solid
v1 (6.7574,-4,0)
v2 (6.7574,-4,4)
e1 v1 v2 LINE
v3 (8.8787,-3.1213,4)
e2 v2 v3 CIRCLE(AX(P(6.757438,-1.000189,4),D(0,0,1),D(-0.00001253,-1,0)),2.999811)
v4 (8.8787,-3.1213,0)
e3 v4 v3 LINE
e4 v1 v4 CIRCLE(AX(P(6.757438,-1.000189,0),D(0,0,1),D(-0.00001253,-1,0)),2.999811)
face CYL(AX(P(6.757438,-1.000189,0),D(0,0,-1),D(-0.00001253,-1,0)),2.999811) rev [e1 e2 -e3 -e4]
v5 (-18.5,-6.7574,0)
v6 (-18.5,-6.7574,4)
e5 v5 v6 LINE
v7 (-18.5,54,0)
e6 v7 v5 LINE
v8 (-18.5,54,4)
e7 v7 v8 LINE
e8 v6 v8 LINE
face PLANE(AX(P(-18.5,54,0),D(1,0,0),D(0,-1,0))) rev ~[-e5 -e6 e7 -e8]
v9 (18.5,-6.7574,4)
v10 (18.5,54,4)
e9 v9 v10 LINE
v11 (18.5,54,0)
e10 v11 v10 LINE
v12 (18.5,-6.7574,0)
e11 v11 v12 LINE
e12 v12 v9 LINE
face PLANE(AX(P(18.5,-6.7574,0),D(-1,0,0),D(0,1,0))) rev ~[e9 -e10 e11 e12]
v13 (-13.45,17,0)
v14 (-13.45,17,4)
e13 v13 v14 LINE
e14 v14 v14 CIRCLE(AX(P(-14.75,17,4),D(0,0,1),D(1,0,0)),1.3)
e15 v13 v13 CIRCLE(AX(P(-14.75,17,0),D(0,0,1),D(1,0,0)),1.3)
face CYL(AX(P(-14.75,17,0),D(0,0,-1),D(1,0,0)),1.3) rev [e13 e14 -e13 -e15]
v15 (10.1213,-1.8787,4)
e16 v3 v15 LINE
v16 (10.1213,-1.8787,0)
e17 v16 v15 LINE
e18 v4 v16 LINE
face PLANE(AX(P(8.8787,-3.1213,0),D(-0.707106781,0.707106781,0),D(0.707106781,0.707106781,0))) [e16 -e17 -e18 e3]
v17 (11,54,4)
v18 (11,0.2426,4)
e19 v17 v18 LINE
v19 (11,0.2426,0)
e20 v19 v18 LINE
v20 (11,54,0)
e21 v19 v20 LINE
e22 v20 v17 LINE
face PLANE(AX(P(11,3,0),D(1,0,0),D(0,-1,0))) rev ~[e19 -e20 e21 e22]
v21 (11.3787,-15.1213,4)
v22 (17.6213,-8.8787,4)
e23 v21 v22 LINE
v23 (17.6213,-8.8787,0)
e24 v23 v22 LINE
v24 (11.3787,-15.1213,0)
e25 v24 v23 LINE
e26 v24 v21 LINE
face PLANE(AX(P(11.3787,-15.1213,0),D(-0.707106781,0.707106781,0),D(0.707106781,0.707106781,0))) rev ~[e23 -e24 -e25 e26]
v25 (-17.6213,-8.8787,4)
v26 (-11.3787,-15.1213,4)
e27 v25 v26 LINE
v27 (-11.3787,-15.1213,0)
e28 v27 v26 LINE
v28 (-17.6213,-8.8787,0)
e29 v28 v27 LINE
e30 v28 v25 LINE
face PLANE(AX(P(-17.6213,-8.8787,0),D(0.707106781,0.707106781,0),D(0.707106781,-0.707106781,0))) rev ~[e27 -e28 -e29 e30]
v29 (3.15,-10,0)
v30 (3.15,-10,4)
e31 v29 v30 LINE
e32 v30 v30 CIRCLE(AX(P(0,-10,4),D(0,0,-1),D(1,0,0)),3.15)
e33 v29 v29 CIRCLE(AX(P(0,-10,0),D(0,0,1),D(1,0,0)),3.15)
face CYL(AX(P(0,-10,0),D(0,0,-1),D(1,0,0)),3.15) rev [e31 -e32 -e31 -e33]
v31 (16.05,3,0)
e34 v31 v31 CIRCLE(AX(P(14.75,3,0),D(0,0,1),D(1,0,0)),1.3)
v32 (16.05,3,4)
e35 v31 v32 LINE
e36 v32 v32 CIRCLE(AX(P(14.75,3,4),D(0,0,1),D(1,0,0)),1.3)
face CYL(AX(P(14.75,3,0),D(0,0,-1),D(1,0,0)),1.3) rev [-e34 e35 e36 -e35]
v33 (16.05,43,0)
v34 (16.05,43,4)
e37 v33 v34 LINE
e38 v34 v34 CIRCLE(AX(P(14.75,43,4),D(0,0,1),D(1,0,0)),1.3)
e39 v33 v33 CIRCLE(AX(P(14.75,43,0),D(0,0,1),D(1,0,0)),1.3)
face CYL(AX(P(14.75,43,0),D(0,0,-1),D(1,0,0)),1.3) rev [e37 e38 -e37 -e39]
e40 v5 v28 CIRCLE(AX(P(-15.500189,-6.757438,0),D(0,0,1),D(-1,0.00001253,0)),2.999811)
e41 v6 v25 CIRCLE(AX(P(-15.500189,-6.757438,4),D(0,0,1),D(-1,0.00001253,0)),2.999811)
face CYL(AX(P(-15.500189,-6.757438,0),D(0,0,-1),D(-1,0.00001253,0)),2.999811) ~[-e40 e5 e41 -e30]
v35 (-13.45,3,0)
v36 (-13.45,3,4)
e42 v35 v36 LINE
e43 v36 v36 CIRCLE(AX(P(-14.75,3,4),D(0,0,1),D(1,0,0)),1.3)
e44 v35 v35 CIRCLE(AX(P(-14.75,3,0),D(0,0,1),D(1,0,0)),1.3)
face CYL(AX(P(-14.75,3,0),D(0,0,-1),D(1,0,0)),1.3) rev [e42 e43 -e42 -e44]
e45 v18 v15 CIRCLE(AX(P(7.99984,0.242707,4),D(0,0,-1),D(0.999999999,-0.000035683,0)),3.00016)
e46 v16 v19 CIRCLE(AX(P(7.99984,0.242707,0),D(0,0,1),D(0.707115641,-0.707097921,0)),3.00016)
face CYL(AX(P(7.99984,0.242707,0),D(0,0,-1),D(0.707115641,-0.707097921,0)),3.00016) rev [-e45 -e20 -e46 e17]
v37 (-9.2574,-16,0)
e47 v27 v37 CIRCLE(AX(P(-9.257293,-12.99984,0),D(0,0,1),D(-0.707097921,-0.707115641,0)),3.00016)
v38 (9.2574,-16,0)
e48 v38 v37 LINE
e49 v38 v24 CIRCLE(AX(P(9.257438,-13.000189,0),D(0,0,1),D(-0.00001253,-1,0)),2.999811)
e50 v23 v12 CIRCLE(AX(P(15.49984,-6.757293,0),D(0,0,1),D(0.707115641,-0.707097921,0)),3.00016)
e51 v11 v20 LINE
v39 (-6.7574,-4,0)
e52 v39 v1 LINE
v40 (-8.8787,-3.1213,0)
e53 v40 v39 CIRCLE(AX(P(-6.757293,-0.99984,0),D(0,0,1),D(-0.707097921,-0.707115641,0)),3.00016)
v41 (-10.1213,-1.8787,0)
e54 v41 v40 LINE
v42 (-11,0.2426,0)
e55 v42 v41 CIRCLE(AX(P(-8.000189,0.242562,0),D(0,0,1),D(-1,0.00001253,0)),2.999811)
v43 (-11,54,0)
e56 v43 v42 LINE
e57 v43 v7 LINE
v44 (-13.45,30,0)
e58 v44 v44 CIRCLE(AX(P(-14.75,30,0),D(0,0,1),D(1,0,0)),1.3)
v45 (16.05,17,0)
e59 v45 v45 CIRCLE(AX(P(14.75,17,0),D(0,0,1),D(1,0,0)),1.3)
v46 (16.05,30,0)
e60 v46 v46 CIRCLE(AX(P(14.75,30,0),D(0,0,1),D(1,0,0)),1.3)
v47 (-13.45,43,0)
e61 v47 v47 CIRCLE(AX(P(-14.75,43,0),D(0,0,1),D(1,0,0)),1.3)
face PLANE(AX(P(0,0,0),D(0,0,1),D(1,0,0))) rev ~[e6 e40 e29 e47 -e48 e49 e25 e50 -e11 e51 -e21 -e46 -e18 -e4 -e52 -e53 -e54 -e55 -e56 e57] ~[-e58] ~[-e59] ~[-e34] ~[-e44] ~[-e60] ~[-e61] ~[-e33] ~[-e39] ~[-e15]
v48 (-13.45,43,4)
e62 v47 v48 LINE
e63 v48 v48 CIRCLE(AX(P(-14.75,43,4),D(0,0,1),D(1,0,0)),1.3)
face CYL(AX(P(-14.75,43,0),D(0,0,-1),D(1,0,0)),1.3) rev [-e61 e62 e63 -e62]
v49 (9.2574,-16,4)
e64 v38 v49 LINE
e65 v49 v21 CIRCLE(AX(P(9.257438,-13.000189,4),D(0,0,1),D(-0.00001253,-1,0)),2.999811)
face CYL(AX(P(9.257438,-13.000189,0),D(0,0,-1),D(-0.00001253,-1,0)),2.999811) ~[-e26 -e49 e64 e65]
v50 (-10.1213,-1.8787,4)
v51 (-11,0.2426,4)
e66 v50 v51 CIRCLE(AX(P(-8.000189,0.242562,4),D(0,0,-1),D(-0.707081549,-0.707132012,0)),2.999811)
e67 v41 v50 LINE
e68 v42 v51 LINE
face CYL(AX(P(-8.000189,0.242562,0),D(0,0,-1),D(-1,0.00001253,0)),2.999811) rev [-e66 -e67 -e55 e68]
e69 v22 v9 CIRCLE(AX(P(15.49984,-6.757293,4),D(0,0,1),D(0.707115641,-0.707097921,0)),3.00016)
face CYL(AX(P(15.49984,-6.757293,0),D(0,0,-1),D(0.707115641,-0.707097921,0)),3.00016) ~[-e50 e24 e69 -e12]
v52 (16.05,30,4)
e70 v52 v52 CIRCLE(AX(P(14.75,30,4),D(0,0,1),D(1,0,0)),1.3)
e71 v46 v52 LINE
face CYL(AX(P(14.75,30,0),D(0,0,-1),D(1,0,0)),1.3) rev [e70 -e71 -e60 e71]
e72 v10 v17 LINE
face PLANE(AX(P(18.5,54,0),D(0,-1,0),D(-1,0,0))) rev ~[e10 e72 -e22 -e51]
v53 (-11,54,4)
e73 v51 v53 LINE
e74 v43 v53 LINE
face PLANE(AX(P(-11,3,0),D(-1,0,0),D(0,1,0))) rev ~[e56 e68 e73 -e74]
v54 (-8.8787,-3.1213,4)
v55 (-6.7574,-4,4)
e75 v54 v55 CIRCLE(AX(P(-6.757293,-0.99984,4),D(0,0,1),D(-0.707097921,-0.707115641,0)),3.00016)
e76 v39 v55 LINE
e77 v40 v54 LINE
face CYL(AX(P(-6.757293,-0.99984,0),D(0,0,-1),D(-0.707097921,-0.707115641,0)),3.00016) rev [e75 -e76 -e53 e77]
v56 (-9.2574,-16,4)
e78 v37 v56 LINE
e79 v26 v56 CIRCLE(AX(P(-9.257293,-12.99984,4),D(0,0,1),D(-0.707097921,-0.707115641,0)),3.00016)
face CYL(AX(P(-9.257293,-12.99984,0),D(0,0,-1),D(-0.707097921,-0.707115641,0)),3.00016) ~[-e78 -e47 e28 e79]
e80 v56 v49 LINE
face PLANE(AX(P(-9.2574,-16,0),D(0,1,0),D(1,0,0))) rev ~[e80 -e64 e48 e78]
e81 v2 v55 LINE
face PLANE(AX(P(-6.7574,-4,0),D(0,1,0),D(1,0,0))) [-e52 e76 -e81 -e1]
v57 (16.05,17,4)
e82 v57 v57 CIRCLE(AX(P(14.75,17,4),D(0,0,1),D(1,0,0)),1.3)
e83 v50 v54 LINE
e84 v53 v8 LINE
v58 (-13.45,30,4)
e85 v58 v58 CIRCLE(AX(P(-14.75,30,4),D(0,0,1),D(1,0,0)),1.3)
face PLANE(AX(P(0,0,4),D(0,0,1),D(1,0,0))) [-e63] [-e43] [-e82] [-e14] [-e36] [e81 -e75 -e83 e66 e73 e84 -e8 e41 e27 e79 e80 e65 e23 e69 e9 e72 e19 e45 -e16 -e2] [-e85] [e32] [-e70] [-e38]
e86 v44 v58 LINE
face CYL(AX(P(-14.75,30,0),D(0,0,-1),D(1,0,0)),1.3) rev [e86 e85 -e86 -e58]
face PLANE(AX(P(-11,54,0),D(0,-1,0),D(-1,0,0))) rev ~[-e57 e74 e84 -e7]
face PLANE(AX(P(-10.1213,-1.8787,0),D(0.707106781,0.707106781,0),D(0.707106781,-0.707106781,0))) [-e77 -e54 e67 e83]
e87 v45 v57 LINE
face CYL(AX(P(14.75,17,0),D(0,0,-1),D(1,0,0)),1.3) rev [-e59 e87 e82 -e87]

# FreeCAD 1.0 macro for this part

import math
import FreeCAD as App
import Part
import Sketcher

V = App.Vector

doc = App.newDocument("Part")
body = doc.addObject("PartDesign::Body", "Body")

sketch1 = body.newObject("Sketcher::SketchObject", "Sketch")
sketch1.AttachmentSupport = (doc.getObject("XY_Plane"), [""])
sketch1.MapMode = "FlatFace"
sketch1.addGeometry([
    Part.LineSegment(V(-18.5, 54, 0), V(-18.5, -6.7574, 0)),
    Part.ArcOfCircle(Part.Circle(V(-15.5, -6.7574, 0), V(0, 0, 1), 3), math.radians(180), math.radians(225)),
    Part.LineSegment(V(-17.6213, -8.8787, 0), V(-11.3787, -15.1213, 0)),
    Part.ArcOfCircle(Part.Circle(V(-9.2574, -13, 0), V(0, 0, 1), 2.999971), math.radians(-135), math.radians(-90)),
    Part.LineSegment(V(-9.2574, -16, 0), V(9.2574, -16, 0)),
    Part.ArcOfCircle(Part.Circle(V(9.2574, -13, 0), V(0, 0, 1), 3), math.radians(-90), math.radians(-45)),
    Part.LineSegment(V(11.3787, -15.1213, 0), V(17.6213, -8.8787, 0)),
    Part.ArcOfCircle(Part.Circle(V(15.5, -6.7574, 0), V(0, 0, 1), 2.999971), math.radians(-45), math.radians(0)),
    Part.LineSegment(V(18.5, -6.7574, 0), V(18.5, 54, 0)),
    Part.LineSegment(V(18.5, 54, 0), V(11, 54, 0)),
    Part.LineSegment(V(11, 54, 0), V(11, 0.2426, 0)),
    Part.ArcOfCircle(Part.Circle(V(8, 0.2426, 0), V(0, 0, 1), 2.999971), math.radians(-45), math.radians(0)),
    Part.LineSegment(V(10.1213, -1.8787, 0), V(8.8787, -3.1213, 0)),
    Part.ArcOfCircle(Part.Circle(V(6.7574, -1, 0), V(0, 0, 1), 3), math.radians(-90), math.radians(-45)),
    Part.LineSegment(V(6.7574, -4, 0), V(-6.7574, -4, 0)),
    Part.ArcOfCircle(Part.Circle(V(-6.7574, -1, 0), V(0, 0, 1), 2.999971), math.radians(-135), math.radians(-90)),
    Part.LineSegment(V(-8.8787, -3.1213, 0), V(-10.1213, -1.8787, 0)),
    Part.ArcOfCircle(Part.Circle(V(-8, 0.2426, 0), V(0, 0, 1), 3), math.radians(180), math.radians(225)),
    Part.LineSegment(V(-11, 0.2426, 0), V(-11, 54, 0)),
    Part.LineSegment(V(-11, 54, 0), V(-18.5, 54, 0)),
    Part.Circle(V(-14.75, 3, 0), V(0, 0, 1), 1.3),
    Part.Circle(V(-14.75, 17, 0), V(0, 0, 1), 1.3),
    Part.Circle(V(-14.75, 30, 0), V(0, 0, 1), 1.3),
    Part.Circle(V(-14.75, 43, 0), V(0, 0, 1), 1.3),
    Part.Circle(V(0, -10, 0), V(0, 0, 1), 3.15),
    Part.Circle(V(14.75, 43, 0), V(0, 0, 1), 1.3),
    Part.Circle(V(14.75, 3, 0), V(0, 0, 1), 1.3),
    Part.Circle(V(14.75, 17, 0), V(0, 0, 1), 1.3),
    Part.Circle(V(14.75, 30, 0), V(0, 0, 1), 1.3),
], False)
sketch1.addConstraint([
    Sketcher.Constraint("Tangent", 0, 2, 1, 1),
    Sketcher.Constraint("Tangent", 1, 2, 2, 1),
    Sketcher.Constraint("Tangent", 2, 2, 3, 1),
    Sketcher.Constraint("Tangent", 3, 2, 4, 1),
    Sketcher.Constraint("Tangent", 4, 2, 5, 1),
    Sketcher.Constraint("Tangent", 5, 2, 6, 1),
    Sketcher.Constraint("Tangent", 6, 2, 7, 1),
    Sketcher.Constraint("Tangent", 7, 2, 8, 1),
    Sketcher.Constraint("Coincident", 8, 2, 9, 1),
    Sketcher.Constraint("Coincident", 9, 2, 10, 1),
    Sketcher.Constraint("Tangent", 10, 2, 11, 2),
    Sketcher.Constraint("Tangent", 11, 1, 12, 1),
    Sketcher.Constraint("Tangent", 12, 2, 13, 2),
    Sketcher.Constraint("Tangent", 13, 1, 14, 1),
    Sketcher.Constraint("Tangent", 14, 2, 15, 2),
    Sketcher.Constraint("Tangent", 15, 1, 16, 1),
    Sketcher.Constraint("Tangent", 16, 2, 17, 2),
    Sketcher.Constraint("Tangent", 17, 1, 18, 1),
    Sketcher.Constraint("Coincident", 18, 2, 19, 1),
    Sketcher.Constraint("Coincident", 19, 2, 0, 1),
    Sketcher.Constraint("Vertical", 0),
    Sketcher.Constraint("Horizontal", 4),
    Sketcher.Constraint("Vertical", 8),
    Sketcher.Constraint("Horizontal", 9),
    Sketcher.Constraint("Vertical", 10),
    Sketcher.Constraint("Horizontal", 14),
    Sketcher.Constraint("Vertical", 18),
    Sketcher.Constraint("Horizontal", 19),
    Sketcher.Constraint("Equal", 1, 3),
    Sketcher.Constraint("Equal", 3, 5),
    Sketcher.Constraint("Equal", 5, 7),
    Sketcher.Constraint("Equal", 7, 11),
    Sketcher.Constraint("Equal", 11, 13),
    Sketcher.Constraint("Equal", 13, 15),
    Sketcher.Constraint("Equal", 15, 17),
    Sketcher.Constraint("Equal", 20, 21),
    Sketcher.Constraint("Equal", 21, 22),
    Sketcher.Constraint("Equal", 22, 23),
    Sketcher.Constraint("Equal", 23, 25),
    Sketcher.Constraint("Equal", 25, 26),
    Sketcher.Constraint("Equal", 26, 27),
    Sketcher.Constraint("Equal", 27, 28),
    Sketcher.Constraint("Symmetric", 1, 3, 7, 3, -2),
    Sketcher.Constraint("Symmetric", 11, 3, 17, 3, -2),
    Sketcher.Constraint("Symmetric", 23, 3, 25, 3, -2),
    Sketcher.Constraint("Symmetric", 20, 3, 26, 3, -2),
    Sketcher.Constraint("Symmetric", 21, 3, 27, 3, -2),
    Sketcher.Constraint("Symmetric", 22, 3, 28, 3, -2),
    Sketcher.Constraint("PointOnObject", 24, 3, -2),
    Sketcher.Constraint("Perpendicular", 2, 6),
    Sketcher.Constraint("Parallel", 6, 12),
    Sketcher.Constraint("Perpendicular", 12, 16),
    Sketcher.Constraint("Horizontal", 2, 2, 5, 2),
    Sketcher.Constraint("Horizontal", 9, 2, 18, 2),
    Sketcher.Constraint("Vertical", 20, 3, 21, 3),
    Sketcher.Constraint("Vertical", 21, 3, 22, 3),
    Sketcher.Constraint("Vertical", 22, 3, 23, 3),
    Sketcher.Constraint("Radius", 1, 3.0),
    Sketcher.Constraint("Diameter", 20, 2.6),
    Sketcher.Constraint("Diameter", 24, 6.3),
    Sketcher.Constraint("DistanceX", 9, 2, 9, 1, 7.5),
    Sketcher.Constraint("DistanceY", 3, 3, -1, 1, 13.0),
    Sketcher.Constraint("DistanceX", -1, 1, 11, 3, 8.0),
    Sketcher.Constraint("DistanceY", -1, 1, 20, 3, 3.0),
    Sketcher.Constraint("DistanceY", -1, 1, 8, 2, 54.0),
    Sketcher.Constraint("DistanceY", 13, 1, -1, 1, 4.0),
    Sketcher.Constraint("DistanceY", 7, 3, 11, 3, 7.0),
    Sketcher.Constraint("DistanceY", 20, 3, 21, 3, 14.0),
    Sketcher.Constraint("DistanceY", 21, 3, 22, 3, 13.0),
    Sketcher.Constraint("DistanceY", 22, 3, 23, 3, 13.0),
    Sketcher.Constraint("DistanceY", 3, 3, 24, 3, 3.0),
    Sketcher.Constraint("DistanceX", 0, 2, 20, 3, 3.75),
    Sketcher.Constraint("DistanceX", 4, 1, 4, 2, 18.5148),
])
pad1 = body.newObject("PartDesign::Pad", "Pad")
pad1.Profile = sketch1
pad1.Length = 4

doc.recompute()
